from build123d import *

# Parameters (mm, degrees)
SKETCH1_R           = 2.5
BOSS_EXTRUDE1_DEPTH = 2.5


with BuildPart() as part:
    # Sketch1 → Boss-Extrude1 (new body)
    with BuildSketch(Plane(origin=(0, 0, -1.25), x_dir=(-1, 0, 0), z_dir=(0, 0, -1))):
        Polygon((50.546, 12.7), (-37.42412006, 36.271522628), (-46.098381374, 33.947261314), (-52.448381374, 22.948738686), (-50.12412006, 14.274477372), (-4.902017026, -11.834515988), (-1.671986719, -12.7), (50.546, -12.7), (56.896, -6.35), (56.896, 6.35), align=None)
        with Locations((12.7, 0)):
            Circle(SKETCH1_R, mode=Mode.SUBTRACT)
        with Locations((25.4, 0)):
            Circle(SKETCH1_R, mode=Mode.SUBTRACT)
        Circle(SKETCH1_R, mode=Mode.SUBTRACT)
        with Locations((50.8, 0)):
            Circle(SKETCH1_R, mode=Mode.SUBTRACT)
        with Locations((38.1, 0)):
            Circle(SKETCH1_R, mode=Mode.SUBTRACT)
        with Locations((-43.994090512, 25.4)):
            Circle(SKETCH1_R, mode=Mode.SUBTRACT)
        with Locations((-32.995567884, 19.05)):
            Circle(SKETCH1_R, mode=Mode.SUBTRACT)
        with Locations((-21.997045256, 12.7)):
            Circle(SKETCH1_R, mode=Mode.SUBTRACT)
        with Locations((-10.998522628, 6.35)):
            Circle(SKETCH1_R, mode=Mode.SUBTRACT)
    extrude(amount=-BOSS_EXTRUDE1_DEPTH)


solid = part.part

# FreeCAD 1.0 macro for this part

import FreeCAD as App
import Part
import Sketcher
from FreeCAD import Vector
Q = App.Units.Quantity

doc = App.newDocument("Part")
body = doc.addObject("PartDesign::Body", "Body")

sketch1 = body.newObject("Sketcher::SketchObject", "Sketch")
sketch1.AttachmentSupport = (doc.getObject("XY_Plane"), [""])
sketch1.MapMode = "FlatFace"
sketch1.AttachmentOffset = App.Placement(Vector(0, 0, -1.25), App.Rotation())
sketch1.addGeometry([
    Part.LineSegment(Vector(-50.546, 12.7, 0), Vector(37.42412, 36.271523, 0)),
    Part.LineSegment(Vector(37.42412, 36.271523, 0), Vector(46.098381, 33.947261, 0)),
    Part.LineSegment(Vector(46.098381, 33.947261, 0), Vector(52.448381, 22.948739, 0)),
    Part.LineSegment(Vector(52.448381, 22.948739, 0), Vector(50.12412, 14.274477, 0)),
    Part.LineSegment(Vector(50.12412, 14.274477, 0), Vector(4.902017, -11.834516, 0)),
    Part.LineSegment(Vector(4.902017, -11.834516, 0), Vector(1.671987, -12.7, 0)),
    Part.LineSegment(Vector(1.671987, -12.7, 0), Vector(-50.546, -12.7, 0)),
    Part.LineSegment(Vector(-50.546, -12.7, 0), Vector(-56.896, -6.35, 0)),
    Part.LineSegment(Vector(-56.896, -6.35, 0), Vector(-56.896, 6.35, 0)),
    Part.LineSegment(Vector(-56.896, 6.35, 0), Vector(-50.546, 12.7, 0)),
    Part.Circle(Vector(0, 0, 0), Vector(0, 0, 1), 2.5),
    Part.Circle(Vector(21.997045, 12.7, 0), Vector(0, 0, 1), 2.5),
    Part.Circle(Vector(10.998523, 6.35, 0), Vector(0, 0, 1), 2.5),
    Part.Circle(Vector(-12.7, 0, 0), Vector(0, 0, 1), 2.5),
    Part.Circle(Vector(-25.4, 0, 0), Vector(0, 0, 1), 2.5),
    Part.Circle(Vector(-38.1, 0, 0), Vector(0, 0, 1), 2.5),
    Part.Circle(Vector(-50.8, 0, 0), Vector(0, 0, 1), 2.5),
    Part.Circle(Vector(32.995568, 19.05, 0), Vector(0, 0, 1), 2.5),
    Part.Circle(Vector(43.994091, 25.4, 0), Vector(0, 0, 1), 2.5),
], False)
sketch1.addConstraint([
    Sketcher.Constraint("Coincident", 0, 2, 1, 1),
    Sketcher.Constraint("Coincident", 1, 2, 2, 1),
    Sketcher.Constraint("Coincident", 2, 2, 3, 1),
    Sketcher.Constraint("Coincident", 3, 2, 4, 1),
    Sketcher.Constraint("Coincident", 4, 2, 5, 1),
    Sketcher.Constraint("Coincident", 5, 2, 6, 1),
    Sketcher.Constraint("Coincident", 6, 2, 7, 1),
    Sketcher.Constraint("Coincident", 7, 2, 8, 1),
    Sketcher.Constraint("Coincident", 8, 2, 9, 1),
    Sketcher.Constraint("Coincident", 9, 2, 0, 1),
    Sketcher.Constraint("Horizontal", 6),
    Sketcher.Constraint("Vertical", 8),
    Sketcher.Constraint("Coincident", 10, 3, -1, 1),
    Sketcher.Constraint("Equal", 10, 11),
    Sketcher.Constraint("Equal", 11, 12),
    Sketcher.Constraint("Equal", 12, 13),
    Sketcher.Constraint("Equal", 13, 14),
    Sketcher.Constraint("Equal", 14, 15),
    Sketcher.Constraint("Equal", 15, 16),
    Sketcher.Constraint("Equal", 16, 17),
    Sketcher.Constraint("Equal", 17, 18),
    Sketcher.Constraint("Symmetric", 6, 2, 9, 2, -1),
    Sketcher.Constraint("PointOnObject", 13, 3, -1),
    Sketcher.Constraint("PointOnObject", 14, 3, -1),
    Sketcher.Constraint("PointOnObject", 15, 3, -1),
    Sketcher.Constraint("PointOnObject", 16, 3, -1),
    Sketcher.Constraint("Perpendicular", 1, 3),
    Sketcher.Constraint("Perpendicular", 2, 4),
    Sketcher.Constraint("Parallel", 0, 5),
    Sketcher.Constraint("Perpendicular", 7, 9),
    Sketcher.Constraint("Horizontal", 12, 3, 8, 2),
    Sketcher.Constraint("Horizontal", 11, 3, 9, 2),
    Sketcher.Constraint("Equal", 1, 3),
    Sketcher.Constraint("Equal", 3, 7),
    Sketcher.Constraint("Equal", 7, 9),
    Sketcher.Constraint("Diameter", 10, 5.0),
    Sketcher.Constraint("Angle", 0, Q("15 deg")),
    Sketcher.Constraint("Angle", 1, Q("-15 deg")),
    Sketcher.Constraint("Angle", 2, Q("-60 deg")),
    Sketcher.Constraint("DistanceY", 8, 1, 8, 2, 12.7),
    Sketcher.Constraint("Distance", 2, 12.7),
    Sketcher.Constraint("DistanceY", -1, 1, 11, 3, 12.7),
    Sketcher.Constraint("DistanceX", 13, 3, -1, 1, 12.7),
    Sketcher.Constraint("DistanceX", 14, 3, -1, 1, 25.4),
    Sketcher.Constraint("DistanceX", 15, 3, -1, 1, 38.1),
    Sketcher.Constraint("DistanceX", 16, 3, -1, 1, 50.8),
    Sketcher.Constraint("DistanceY", -1, 1, 18, 3, 25.4),
    Sketcher.Constraint("DistanceY", 12, 3, 17, 3, 12.7),
    Sketcher.Constraint("DistanceX", 6, 2, -1, 1, 50.546),
    Sketcher.Constraint("Distance", 0, 91.07337),
    Sketcher.Constraint("DistanceX", 6, 2, 6, 1, 52.217987),
    Sketcher.Constraint("DistanceX", -1, 1, 18, 3, 43.994091),
    Sketcher.Constraint("DistanceX", 12, 3, 1, 2, 35.099859),
    Sketcher.Constraint("DistanceX", 4, 2, 11, 3, 17.095028),
    Sketcher.Constraint("DistanceX", -1, 1, 17, 3, 32.995568),
])
pad1 = body.newObject("PartDesign::Pad", "Pad")
pad1.Profile = sketch1
pad1.Length = 2.5

doc.recompute()
